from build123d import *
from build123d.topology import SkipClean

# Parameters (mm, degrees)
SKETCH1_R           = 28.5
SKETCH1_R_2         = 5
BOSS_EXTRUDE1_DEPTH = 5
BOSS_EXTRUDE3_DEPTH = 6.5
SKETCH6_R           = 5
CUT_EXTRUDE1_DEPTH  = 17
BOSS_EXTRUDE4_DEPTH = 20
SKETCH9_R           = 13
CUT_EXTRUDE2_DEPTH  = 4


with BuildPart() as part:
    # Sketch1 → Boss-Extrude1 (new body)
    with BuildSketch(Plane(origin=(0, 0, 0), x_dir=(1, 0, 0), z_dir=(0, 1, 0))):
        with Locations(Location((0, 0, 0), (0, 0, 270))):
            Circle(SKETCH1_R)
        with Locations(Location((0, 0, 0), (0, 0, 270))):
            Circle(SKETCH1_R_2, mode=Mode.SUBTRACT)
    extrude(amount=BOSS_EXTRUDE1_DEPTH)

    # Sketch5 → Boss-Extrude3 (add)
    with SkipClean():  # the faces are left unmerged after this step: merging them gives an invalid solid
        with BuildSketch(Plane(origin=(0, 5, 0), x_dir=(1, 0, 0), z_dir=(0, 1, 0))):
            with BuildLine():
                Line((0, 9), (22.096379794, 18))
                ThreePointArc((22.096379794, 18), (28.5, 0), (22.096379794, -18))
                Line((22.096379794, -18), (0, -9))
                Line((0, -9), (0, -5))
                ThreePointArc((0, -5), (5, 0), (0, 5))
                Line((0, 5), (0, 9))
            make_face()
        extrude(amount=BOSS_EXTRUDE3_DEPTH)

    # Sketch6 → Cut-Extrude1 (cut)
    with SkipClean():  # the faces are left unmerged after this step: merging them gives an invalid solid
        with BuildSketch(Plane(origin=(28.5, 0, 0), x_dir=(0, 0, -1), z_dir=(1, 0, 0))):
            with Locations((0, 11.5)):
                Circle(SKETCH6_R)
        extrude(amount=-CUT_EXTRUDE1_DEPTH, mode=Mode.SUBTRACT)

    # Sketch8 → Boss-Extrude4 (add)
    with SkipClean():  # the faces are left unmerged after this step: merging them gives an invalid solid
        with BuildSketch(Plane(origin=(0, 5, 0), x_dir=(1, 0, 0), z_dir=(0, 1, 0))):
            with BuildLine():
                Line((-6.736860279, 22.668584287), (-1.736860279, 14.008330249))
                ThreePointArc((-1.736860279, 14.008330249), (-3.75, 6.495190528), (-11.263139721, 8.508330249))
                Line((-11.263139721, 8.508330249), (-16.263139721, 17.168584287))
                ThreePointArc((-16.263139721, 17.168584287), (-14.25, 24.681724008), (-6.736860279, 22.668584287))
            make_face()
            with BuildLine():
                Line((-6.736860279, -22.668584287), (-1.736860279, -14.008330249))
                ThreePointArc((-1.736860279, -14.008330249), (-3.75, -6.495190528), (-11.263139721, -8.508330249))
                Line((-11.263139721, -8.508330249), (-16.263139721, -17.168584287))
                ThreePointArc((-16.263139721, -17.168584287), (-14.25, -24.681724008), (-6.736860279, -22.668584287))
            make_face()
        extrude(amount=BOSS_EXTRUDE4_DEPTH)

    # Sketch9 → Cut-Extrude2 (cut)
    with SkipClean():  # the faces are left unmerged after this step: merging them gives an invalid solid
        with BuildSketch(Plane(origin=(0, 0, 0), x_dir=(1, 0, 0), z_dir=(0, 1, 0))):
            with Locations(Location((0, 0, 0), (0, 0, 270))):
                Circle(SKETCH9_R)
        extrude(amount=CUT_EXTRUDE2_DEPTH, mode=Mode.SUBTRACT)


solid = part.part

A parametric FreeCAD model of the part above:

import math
import FreeCAD as App
import Part
import Sketcher

V = App.Vector
Q = App.Units.Quantity

doc = App.newDocument("Part")
body = doc.addObject("PartDesign::Body", "Body")

# Sketch on XZ plane
sketch1 = body.newObject("Sketcher::SketchObject", "Sketch")
sketch1.AttachmentSupport = (doc.getObject("XZ_Plane"), [""])
sketch1.MapMode = "FlatFace"
sketch1.addGeometry([
    Part.Circle(V(0, 0, 0), V(0, 0, 1), 28.5),
    Part.Circle(V(0, 0, 0), V(0, 0, 1), 5),
], False)
sketch1.addConstraint([
    Sketcher.Constraint("Coincident", 0, 3, -1, 1),
    Sketcher.Constraint("Coincident", 1, 3, -1, 1),
    Sketcher.Constraint("Diameter", 0, 57.0),
    Sketcher.Constraint("Diameter", 1, 10.0),
])
pad1 = body.newObject("PartDesign::Pad", "Pad")
pad1.Profile = sketch1
pad1.Length = 5
pad1.Reversed = True

# Sketch on XZ plane
sketch2 = body.newObject("Sketcher::SketchObject", "Sketch001")
sketch2.AttachmentSupport = (doc.getObject("XZ_Plane"), [""])
sketch2.MapMode = "FlatFace"
sketch2.AttachmentOffset = App.Placement(V(0, 0, -5), App.Rotation())
sketch2.addGeometry([
    Part.LineSegment(V(22.09638, -18, 0), V(0, -9, 0)),  # 0
    Part.LineSegment(V(0, -9, 0), V(0, -5, 0)),  # 1
    Part.ArcOfCircle(Part.Circle(V(0, 0, 0), V(0, 0, 1), 5), math.radians(-90), math.radians(90)),  # 2
    Part.LineSegment(V(0, 5, 0), V(0, 9, 0)),  # 3
    Part.LineSegment(V(0, 9, 0), V(22.09638, 18, 0)),  # 4
    Part.ArcOfCircle(Part.Circle(V(0, 0, 0), V(0, 0, 1), 28.5), math.radians(-39.166711), math.radians(39.166711)),  # 5
], False)
sketch2.addConstraint([
    Sketcher.Constraint("Coincident", 0, 2, 1, 1),
    Sketcher.Constraint("Coincident", 1, 2, 2, 1),
    Sketcher.Constraint("Coincident", 2, 2, 3, 1),
    Sketcher.Constraint("Coincident", 3, 2, 4, 1),
    Sketcher.Constraint("Coincident", 4, 2, 5, 2),
    Sketcher.Constraint("Coincident", 5, 1, 0, 1),
    Sketcher.Constraint("Vertical", 1),
    Sketcher.Constraint("Vertical", 3),
    Sketcher.Constraint("Coincident", 2, 3, -1, 1),
    Sketcher.Constraint("Coincident", 5, 3, -1, 1),
    Sketcher.Constraint("Symmetric", 0, 2, 3, 2, -1, 1),
    Sketcher.Constraint("PointOnObject", 0, 2, -2),
    Sketcher.Constraint("Vertical", 4, 2, 5, 1),
    Sketcher.Constraint("Radius", 2, 5.0),
    Sketcher.Constraint("Radius", 5, 28.5),
    Sketcher.Constraint("DistanceY", 1, 1, 1, 2, 4.0),
    Sketcher.Constraint("DistanceY", -1, 1, 4, 2, 18.0),
])
pad2 = body.newObject("PartDesign::Pad", "Pad001")
pad2.Profile = sketch2
pad2.Length = 6.5
pad2.Reversed = True

# Sketch on YZ plane
sketch3 = body.newObject("Sketcher::SketchObject", "Sketch002")
sketch3.AttachmentSupport = (doc.getObject("YZ_Plane"), [""])
sketch3.MapMode = "FlatFace"
sketch3.AttachmentOffset = App.Placement(V(0, 0, 28.5), App.Rotation())
sketch3.addGeometry(Part.Circle(V(11.5, 0, 0), V(0, 0, 1), 5), False)
sketch3.addConstraint([
    Sketcher.Constraint("PointOnObject", 0, 3, -1),
    Sketcher.Constraint("Diameter", 0, 10.0),
    Sketcher.Constraint("DistanceX", -1, 1, 0, 3, 11.5),
])
pocket1 = body.newObject("PartDesign::Pocket", "Pocket")
pocket1.Profile = sketch3
pocket1.Length = 17

# Sketch on XZ plane
sketch4 = body.newObject("Sketcher::SketchObject", "Sketch003")
sketch4.AttachmentSupport = (doc.getObject("XZ_Plane"), [""])
sketch4.MapMode = "FlatFace"
sketch4.AttachmentOffset = App.Placement(V(0, 0, -5), App.Rotation())
sketch4.addGeometry([
    Part.LineSegment(V(-1.73686, -14.00833, 0), V(-6.73686, -22.668584, 0)),  # 0
    Part.ArcOfCircle(Part.Circle(V(-11.5, -19.918584, 0), V(0, 0, 1), 5.5), math.radians(150), math.radians(330)),  # 1
    Part.LineSegment(V(-16.26314, -17.168584, 0), V(-11.26314, -8.50833, 0)),  # 2
    Part.ArcOfCircle(Part.Circle(V(-6.5, -11.25833, 0), V(0, 0, 1), 5.5), math.radians(-30), math.radians(150)),  # 3
    Part.LineSegment(V(-6.73686, 22.668584, 0), V(-1.73686, 14.00833, 0)),  # 4
    Part.ArcOfCircle(Part.Circle(V(-6.5, 11.25833, 0), V(0, 0, 1), 5.5), math.radians(-150), math.radians(30)),  # 5
    Part.LineSegment(V(-11.26314, 8.50833, 0), V(-16.26314, 17.168584, 0)),  # 6
    Part.ArcOfCircle(Part.Circle(V(-11.5, 19.918584, 0), V(0, 0, 1), 5.5), math.radians(30), math.radians(210)),  # 7
], False)
sketch4.addConstraint([
    Sketcher.Constraint("Tangent", 0, 2, 1, 2),
    Sketcher.Constraint("Tangent", 1, 1, 2, 1),
    Sketcher.Constraint("Tangent", 2, 2, 3, 2),
    Sketcher.Constraint("Tangent", 3, 1, 0, 1),
    Sketcher.Constraint("Tangent", 4, 2, 5, 2),
    Sketcher.Constraint("Tangent", 5, 1, 6, 1),
    Sketcher.Constraint("Tangent", 6, 2, 7, 2),
    Sketcher.Constraint("Tangent", 7, 1, 4, 1),
    Sketcher.Constraint("Equal", 1, 3),
    Sketcher.Constraint("Equal", 3, 5),
    Sketcher.Constraint("Equal", 5, 7),
    Sketcher.Constraint("Symmetric", 3, 3, 5, 3, -1),
    Sketcher.Constraint("Symmetric", 1, 3, 7, 3, -1),
    Sketcher.Constraint("Radius", 1, 5.5),
    Sketcher.Constraint("Angle", 0, Q("-120 deg")),
    Sketcher.Constraint("Distance", 0, 10.0),
    Sketcher.Constraint("DistanceX", 1, 3, -1, 1, 11.5),
    Sketcher.Constraint("DistanceY", 3, 3, -1, 1, 11.25833),
])
pad3 = body.newObject("PartDesign::Pad", "Pad002")
pad3.Profile = sketch4
pad3.Length = 20
pad3.Reversed = True

# Sketch on XZ plane
sketch5 = body.newObject("Sketcher::SketchObject", "Sketch004")
sketch5.AttachmentSupport = (doc.getObject("XZ_Plane"), [""])
sketch5.MapMode = "FlatFace"
sketch5.addGeometry(Part.Circle(V(0, 0, 0), V(0, 0, 1), 13), False)
sketch5.addConstraint([
    Sketcher.Constraint("Coincident", 0, 3, -1, 1),
    Sketcher.Constraint("Diameter", 0, 26.0),
])
pocket2 = body.newObject("PartDesign::Pocket", "Pocket001")
pocket2.Profile = sketch5
pocket2.Length = 4

doc.recompute()
